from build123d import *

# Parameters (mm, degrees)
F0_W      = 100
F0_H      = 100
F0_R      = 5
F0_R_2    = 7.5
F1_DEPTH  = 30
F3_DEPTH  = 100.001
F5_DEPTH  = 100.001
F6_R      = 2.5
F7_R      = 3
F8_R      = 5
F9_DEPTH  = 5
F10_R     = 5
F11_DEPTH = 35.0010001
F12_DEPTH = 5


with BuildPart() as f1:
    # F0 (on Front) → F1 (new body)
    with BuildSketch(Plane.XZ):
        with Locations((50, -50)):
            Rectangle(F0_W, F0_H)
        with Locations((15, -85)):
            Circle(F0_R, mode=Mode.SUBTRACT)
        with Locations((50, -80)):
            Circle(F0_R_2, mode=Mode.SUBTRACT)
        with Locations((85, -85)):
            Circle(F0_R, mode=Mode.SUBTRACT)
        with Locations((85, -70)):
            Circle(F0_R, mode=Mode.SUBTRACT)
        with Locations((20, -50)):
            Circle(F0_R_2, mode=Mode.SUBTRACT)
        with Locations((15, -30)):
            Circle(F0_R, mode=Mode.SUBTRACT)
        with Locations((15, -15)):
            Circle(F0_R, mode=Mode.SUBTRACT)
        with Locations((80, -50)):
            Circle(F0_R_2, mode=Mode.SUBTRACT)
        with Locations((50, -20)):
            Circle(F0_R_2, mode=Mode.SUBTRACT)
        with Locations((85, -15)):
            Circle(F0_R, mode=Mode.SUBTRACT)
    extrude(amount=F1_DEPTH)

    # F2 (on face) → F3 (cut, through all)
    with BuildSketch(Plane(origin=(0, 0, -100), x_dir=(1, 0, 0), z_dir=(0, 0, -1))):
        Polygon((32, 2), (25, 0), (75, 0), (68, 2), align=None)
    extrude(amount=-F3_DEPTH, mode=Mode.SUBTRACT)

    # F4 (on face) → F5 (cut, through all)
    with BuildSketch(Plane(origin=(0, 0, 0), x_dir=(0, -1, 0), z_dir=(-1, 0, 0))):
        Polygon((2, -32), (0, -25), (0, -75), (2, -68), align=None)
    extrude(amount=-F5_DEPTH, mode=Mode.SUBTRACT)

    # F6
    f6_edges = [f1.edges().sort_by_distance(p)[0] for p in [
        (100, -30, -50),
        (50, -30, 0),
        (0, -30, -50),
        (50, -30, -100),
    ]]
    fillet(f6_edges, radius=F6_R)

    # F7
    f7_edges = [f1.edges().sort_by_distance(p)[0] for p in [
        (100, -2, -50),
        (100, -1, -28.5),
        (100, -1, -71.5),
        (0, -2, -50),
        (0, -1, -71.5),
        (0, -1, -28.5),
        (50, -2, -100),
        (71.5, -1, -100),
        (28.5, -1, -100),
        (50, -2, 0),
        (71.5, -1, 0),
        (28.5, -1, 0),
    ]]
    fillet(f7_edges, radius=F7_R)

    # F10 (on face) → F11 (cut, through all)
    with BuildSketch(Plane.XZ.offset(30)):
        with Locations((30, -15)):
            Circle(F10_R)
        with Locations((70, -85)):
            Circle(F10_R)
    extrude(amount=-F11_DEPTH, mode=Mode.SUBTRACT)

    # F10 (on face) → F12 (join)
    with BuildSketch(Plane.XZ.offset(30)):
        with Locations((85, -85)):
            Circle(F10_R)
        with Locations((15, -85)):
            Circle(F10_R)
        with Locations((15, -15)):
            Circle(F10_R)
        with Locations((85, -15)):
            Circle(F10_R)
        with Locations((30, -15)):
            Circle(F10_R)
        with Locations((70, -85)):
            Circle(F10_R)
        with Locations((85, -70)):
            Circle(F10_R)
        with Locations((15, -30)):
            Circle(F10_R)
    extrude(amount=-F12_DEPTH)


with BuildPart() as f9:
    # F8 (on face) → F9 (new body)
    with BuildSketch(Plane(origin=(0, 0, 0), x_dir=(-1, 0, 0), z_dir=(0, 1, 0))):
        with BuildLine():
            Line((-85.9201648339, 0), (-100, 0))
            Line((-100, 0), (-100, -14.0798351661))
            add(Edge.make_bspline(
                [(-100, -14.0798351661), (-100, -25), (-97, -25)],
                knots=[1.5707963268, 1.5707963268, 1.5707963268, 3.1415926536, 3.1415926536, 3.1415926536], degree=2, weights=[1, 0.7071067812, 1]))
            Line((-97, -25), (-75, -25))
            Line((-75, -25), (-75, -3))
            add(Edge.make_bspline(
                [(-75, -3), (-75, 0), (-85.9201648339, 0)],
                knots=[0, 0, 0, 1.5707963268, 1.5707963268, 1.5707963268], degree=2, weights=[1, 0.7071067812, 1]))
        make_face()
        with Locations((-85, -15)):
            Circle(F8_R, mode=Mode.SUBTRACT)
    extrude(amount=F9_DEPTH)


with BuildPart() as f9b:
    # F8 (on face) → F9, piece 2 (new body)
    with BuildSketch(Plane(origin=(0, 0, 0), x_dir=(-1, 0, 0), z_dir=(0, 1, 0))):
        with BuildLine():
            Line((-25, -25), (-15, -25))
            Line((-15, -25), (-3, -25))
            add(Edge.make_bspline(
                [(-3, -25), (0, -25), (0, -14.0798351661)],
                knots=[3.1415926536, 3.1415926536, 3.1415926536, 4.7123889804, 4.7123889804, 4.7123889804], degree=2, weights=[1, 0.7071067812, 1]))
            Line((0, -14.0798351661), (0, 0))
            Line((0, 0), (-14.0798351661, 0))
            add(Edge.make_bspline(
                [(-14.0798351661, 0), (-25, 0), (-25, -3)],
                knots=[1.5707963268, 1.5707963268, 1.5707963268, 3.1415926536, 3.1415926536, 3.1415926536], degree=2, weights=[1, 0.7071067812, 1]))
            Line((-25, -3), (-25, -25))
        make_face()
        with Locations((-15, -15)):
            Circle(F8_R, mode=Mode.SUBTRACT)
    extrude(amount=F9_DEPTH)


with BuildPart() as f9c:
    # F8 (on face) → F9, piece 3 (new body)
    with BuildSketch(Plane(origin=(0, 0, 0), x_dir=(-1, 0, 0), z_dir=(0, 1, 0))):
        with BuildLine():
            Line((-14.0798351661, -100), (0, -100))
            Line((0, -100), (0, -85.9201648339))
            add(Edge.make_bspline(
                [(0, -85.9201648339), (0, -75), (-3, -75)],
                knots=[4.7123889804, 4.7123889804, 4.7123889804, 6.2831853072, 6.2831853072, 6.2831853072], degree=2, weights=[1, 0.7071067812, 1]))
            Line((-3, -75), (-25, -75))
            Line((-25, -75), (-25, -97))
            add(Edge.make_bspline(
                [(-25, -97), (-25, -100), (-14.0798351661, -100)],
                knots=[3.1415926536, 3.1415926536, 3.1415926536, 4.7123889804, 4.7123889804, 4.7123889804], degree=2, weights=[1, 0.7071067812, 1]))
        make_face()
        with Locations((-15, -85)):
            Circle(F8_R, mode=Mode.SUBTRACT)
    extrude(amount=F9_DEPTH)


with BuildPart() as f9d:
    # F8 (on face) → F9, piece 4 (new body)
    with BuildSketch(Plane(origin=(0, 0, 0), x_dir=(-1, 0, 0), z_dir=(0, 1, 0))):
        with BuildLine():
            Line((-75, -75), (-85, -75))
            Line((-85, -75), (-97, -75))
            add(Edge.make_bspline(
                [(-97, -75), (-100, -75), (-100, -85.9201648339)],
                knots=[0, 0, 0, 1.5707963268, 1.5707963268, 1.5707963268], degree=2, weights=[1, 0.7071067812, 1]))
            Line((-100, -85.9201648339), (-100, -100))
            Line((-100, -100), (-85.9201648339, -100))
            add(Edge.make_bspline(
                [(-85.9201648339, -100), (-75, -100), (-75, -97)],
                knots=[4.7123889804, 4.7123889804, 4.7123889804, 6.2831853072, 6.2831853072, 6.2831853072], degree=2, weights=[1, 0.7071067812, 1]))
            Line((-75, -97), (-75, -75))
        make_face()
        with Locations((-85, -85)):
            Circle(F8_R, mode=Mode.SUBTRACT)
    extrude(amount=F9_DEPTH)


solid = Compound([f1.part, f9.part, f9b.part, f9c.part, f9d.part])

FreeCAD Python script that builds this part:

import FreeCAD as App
import Part
import Sketcher
from FreeCAD import Vector
Q = App.Units.Quantity


def edges_at(feature, points):
    """Names of the edges that pass closest to the given points."""
    edges = feature.Shape.Edges
    near = lambda p: min(range(len(edges)), key=lambda i: edges[i].distToShape(Part.Vertex(*p))[0])
    return sorted({f"Edge{near(p) + 1}" for p in points})

doc = App.newDocument("Part")
body = doc.addObject("PartDesign::Body", "Body")

# Sketch on XZ plane
sketch1 = doc.addObject("Sketcher::SketchObject", "Sketch")
body.addObject(sketch1)
sketch1.AttachmentSupport = (doc.XZ_Plane, [""])
sketch1.MapMode = "FlatFace"
sketch1.addGeometry([
    Part.LineSegment(Vector(0, 0, 0), Vector(0, -100, 0)),  # 0
    Part.LineSegment(Vector(0, -100, 0), Vector(100, -100, 0)),  # 1
    Part.LineSegment(Vector(100, -100, 0), Vector(100, 0, 0)),  # 2
    Part.LineSegment(Vector(100, 0, 0), Vector(0, 0, 0)),  # 3
    Part.Circle(Vector(15, -85, 0), Vector(0, 0, 1), 5),  # 4
    Part.Circle(Vector(50, -80, 0), Vector(0, 0, 1), 7.5),  # 5
    Part.Circle(Vector(85, -85, 0), Vector(0, 0, 1), 5),  # 6
    Part.Circle(Vector(85, -70, 0), Vector(0, 0, 1), 5),  # 7
    Part.Circle(Vector(20, -50, 0), Vector(0, 0, 1), 7.5),  # 8
    Part.Circle(Vector(15, -30, 0), Vector(0, 0, 1), 5),  # 9
    Part.Circle(Vector(15, -15, 0), Vector(0, 0, 1), 5),  # 10
    Part.Circle(Vector(80, -50, 0), Vector(0, 0, 1), 7.5),  # 11
    Part.Circle(Vector(50, -20, 0), Vector(0, 0, 1), 7.5),  # 12
    Part.Circle(Vector(85, -15, 0), Vector(0, 0, 1), 5),  # 13
], False)
sketch1.addConstraint([
    Sketcher.Constraint("Coincident", 0, 2, 1, 1),
    Sketcher.Constraint("Coincident", 1, 2, 2, 1),
    Sketcher.Constraint("Coincident", 2, 2, 3, 1),
    Sketcher.Constraint("Coincident", 3, 2, 0, 1),
    Sketcher.Constraint("Vertical", 0),
    Sketcher.Constraint("Horizontal", 1),
    Sketcher.Constraint("Vertical", 2),
    Sketcher.Constraint("Horizontal", 3),
    Sketcher.Constraint("Coincident", 3, 2, -1, 1),
    Sketcher.Constraint("Equal", 4, 6),
    Sketcher.Constraint("Equal", 6, 7),
    Sketcher.Constraint("Equal", 5, 8),
    Sketcher.Constraint("Equal", 7, 9),
    Sketcher.Constraint("Equal", 9, 10),
    Sketcher.Constraint("Equal", 8, 11),
    Sketcher.Constraint("Equal", 11, 12),
    Sketcher.Constraint("Equal", 10, 13),
    Sketcher.Constraint("Horizontal", 4, 3, 6, 3),
    Sketcher.Constraint("Horizontal", 8, 3, 11, 3),
    Sketcher.Constraint("Horizontal", 10, 3, 13, 3),
    Sketcher.Constraint("Vertical", 6, 3, 7, 3),
    Sketcher.Constraint("Vertical", 4, 3, 9, 3),
    Sketcher.Constraint("Vertical", 9, 3, 10, 3),
    Sketcher.Constraint("Vertical", 5, 3, 12, 3),
    Sketcher.Constraint("Vertical", 7, 3, 13, 3),
    Sketcher.Constraint("Equal", 3, 0),
    Sketcher.Constraint("Diameter", 4, Q("10 mm")),
    Sketcher.Constraint("Diameter", 5, Q("15 mm")),
    Sketcher.Constraint("DistanceX", 1, 1, 1, 2, Q("100 mm")),
    Sketcher.Constraint("DistanceX", -1, 1, 4, 3, Q("15 mm")),
    Sketcher.Constraint("DistanceY", 4, 3, -1, 1, Q("85 mm")),
    Sketcher.Constraint("DistanceX", -1, 1, 5, 3, Q("50 mm")),
    Sketcher.Constraint("DistanceY", 5, 3, -1, 1, Q("80 mm")),
    Sketcher.Constraint("DistanceX", -1, 1, 6, 3, Q("85 mm")),
    Sketcher.Constraint("DistanceY", 7, 3, -1, 1, Q("70 mm")),
    Sketcher.Constraint("DistanceX", -1, 1, 8, 3, Q("20 mm")),
    Sketcher.Constraint("DistanceY", 8, 3, -1, 1, Q("50 mm")),
    Sketcher.Constraint("DistanceY", 9, 3, -1, 1, Q("30 mm")),
    Sketcher.Constraint("DistanceY", 10, 3, -1, 1, Q("15 mm")),
    Sketcher.Constraint("DistanceX", -1, 1, 11, 3, Q("80 mm")),
    Sketcher.Constraint("DistanceY", 12, 3, -1, 1, Q("20 mm")),
])
pad1 = doc.addObject("PartDesign::Pad", "Pad")
body.addObject(pad1)
pad1.Profile = sketch1
pad1.Length = 30

# Sketch on XY plane
sketch2 = doc.addObject("Sketcher::SketchObject", "Sketch001")
body.addObject(sketch2)
sketch2.AttachmentSupport = (doc.XY_Plane, [""])
sketch2.MapMode = "FlatFace"
sketch2.AttachmentOffset = App.Placement(Vector(0, 0, -100), App.Rotation())
sketch2.addGeometry([
    Part.LineSegment(Vector(32, -2, 0), Vector(25, 0, 0)),
    Part.LineSegment(Vector(25, 0, 0), Vector(75, 0, 0)),
    Part.LineSegment(Vector(75, 0, 0), Vector(68, -2, 0)),
    Part.LineSegment(Vector(68, -2, 0), Vector(32, -2, 0)),
], False)
sketch2.addConstraint([
    Sketcher.Constraint("Coincident", 0, 2, 1, 1),
    Sketcher.Constraint("Coincident", 1, 2, 2, 1),
    Sketcher.Constraint("Coincident", 2, 2, 3, 1),
    Sketcher.Constraint("Coincident", 3, 2, 0, 1),
    Sketcher.Constraint("Horizontal", 1),
    Sketcher.Constraint("Horizontal", 3),
    Sketcher.Constraint("PointOnObject", 0, 2, -1),
    Sketcher.Constraint("Equal", 0, 2),
    Sketcher.Constraint("DistanceX", 1, 1, 1, 2, Q("50 mm")),
    Sketcher.Constraint("DistanceX", 3, 2, 3, 1, Q("36 mm")),
    Sketcher.Constraint("DistanceX", -1, 1, 0, 2, Q("25 mm")),
    Sketcher.Constraint("DistanceY", 2, 2, -1, 1, Q("2 mm")),
])
pocket1 = doc.addObject("PartDesign::Pocket", "Pocket")
body.addObject(pocket1)
pocket1.Profile = sketch2
pocket1.Type = "ThroughAll"
pocket1.Reversed = True

# Sketch on YZ plane
sketch3 = doc.addObject("Sketcher::SketchObject", "Sketch002")
body.addObject(sketch3)
sketch3.AttachmentSupport = (doc.YZ_Plane, [""])
sketch3.MapMode = "FlatFace"
sketch3.addGeometry([
    Part.LineSegment(Vector(-2, -32, 0), Vector(0, -25, 0)),
    Part.LineSegment(Vector(0, -25, 0), Vector(0, -75, 0)),
    Part.LineSegment(Vector(0, -75, 0), Vector(-2, -68, 0)),
    Part.LineSegment(Vector(-2, -68, 0), Vector(-2, -32, 0)),
], False)
sketch3.addConstraint([
    Sketcher.Constraint("Coincident", 0, 2, 1, 1),
    Sketcher.Constraint("Coincident", 1, 2, 2, 1),
    Sketcher.Constraint("Coincident", 2, 2, 3, 1),
    Sketcher.Constraint("Coincident", 3, 2, 0, 1),
    Sketcher.Constraint("Vertical", 1),
    Sketcher.Constraint("Vertical", 3),
    Sketcher.Constraint("PointOnObject", 0, 2, -2),
    Sketcher.Constraint("Equal", 0, 2),
    Sketcher.Constraint("DistanceY", 1, 2, 1, 1, Q("50 mm")),
    Sketcher.Constraint("DistanceY", 3, 1, 3, 2, Q("36 mm")),
    Sketcher.Constraint("DistanceY", 0, 2, -1, 1, Q("25 mm")),
    Sketcher.Constraint("DistanceX", 2, 2, -1, 1, Q("2 mm")),
])
pocket2 = doc.addObject("PartDesign::Pocket", "Pocket001")
body.addObject(pocket2)
pocket2.Profile = sketch3
pocket2.Type = "ThroughAll"
pocket2.Reversed = True
doc.recompute()

fillet = doc.addObject("PartDesign::Fillet", "Fillet")
body.addObject(fillet)
fillet.Base = (pocket2, edges_at(pocket2, [
    (100, -30, -50),
    (50, -30, 0),
    (0, -30, -50),
    (50, -30, -100),
]))
fillet.Radius = 2.5
doc.recompute()

fillet2 = doc.addObject("PartDesign::Fillet", "Fillet001")
body.addObject(fillet2)
fillet2.Base = (fillet, edges_at(fillet, [
    (100, -2, -50),
    (100, -1, -28.5),
    (100, -1, -71.5),
    (0, -2, -50),
    (0, -1, -71.5),
    (0, -1, -28.5),
    (50, -2, -100),
    (71.5, -1, -100),
    (28.5, -1, -100),
    (50, -2, 0),
    (71.5, -1, 0),
    (28.5, -1, 0),
]))
fillet2.Radius = 3

# Sketch on XZ plane
sketch4 = doc.addObject("Sketcher::SketchObject", "Sketch003")
body.addObject(sketch4)
sketch4.AttachmentSupport = (doc.XZ_Plane, [""])
sketch4.MapMode = "FlatFace"
sketch4.AttachmentOffset = App.Placement(Vector(0, 0, 30), App.Rotation())
sketch4.addGeometry([
    Part.Circle(Vector(30, -15, 0), Vector(0, 0, 1), 5),
    Part.Circle(Vector(70, -85, 0), Vector(0, 0, 1), 5),
], False)
sketch4.addConstraint([
    Sketcher.Constraint("Equal", 0, 1),
    Sketcher.Constraint("Diameter", 0, Q("10 mm")),
    Sketcher.Constraint("DistanceX", -1, 1, 0, 3, Q("30 mm")),
    Sketcher.Constraint("DistanceY", 0, 3, -1, 1, Q("15 mm")),
    Sketcher.Constraint("DistanceX", -1, 1, 1, 3, Q("70 mm")),
    Sketcher.Constraint("DistanceY", 1, 3, -1, 1, Q("85 mm")),
])
pocket3 = doc.addObject("PartDesign::Pocket", "Pocket002")
body.addObject(pocket3)
pocket3.Profile = sketch4
pocket3.Type = "ThroughAll"

# Sketch on XZ plane
sketch5 = doc.addObject("Sketcher::SketchObject", "Sketch004")
body.addObject(sketch5)
sketch5.AttachmentSupport = (doc.XZ_Plane, [""])
sketch5.MapMode = "FlatFace"
sketch5.AttachmentOffset = App.Placement(Vector(0, 0, 30), App.Rotation())
sketch5.addGeometry([
    Part.Circle(Vector(85, -85, 0), Vector(0, 0, 1), 5),  # 0
    Part.Circle(Vector(15, -85, 0), Vector(0, 0, 1), 5),  # 1
    Part.Circle(Vector(15, -15, 0), Vector(0, 0, 1), 5),  # 2
    Part.Circle(Vector(85, -15, 0), Vector(0, 0, 1), 5),  # 3
    Part.Circle(Vector(30, -15, 0), Vector(0, 0, 1), 5),  # 4
    Part.Circle(Vector(70, -85, 0), Vector(0, 0, 1), 5),  # 5
    Part.Circle(Vector(85, -70, 0), Vector(0, 0, 1), 5),  # 6
    Part.Circle(Vector(15, -30, 0), Vector(0, 0, 1), 5),  # 7
], False)
sketch5.addConstraint([
    Sketcher.Constraint("Equal", 0, 1),
    Sketcher.Constraint("Equal", 1, 2),
    Sketcher.Constraint("Equal", 2, 3),
    Sketcher.Constraint("Equal", 3, 4),
    Sketcher.Constraint("Equal", 4, 5),
    Sketcher.Constraint("Equal", 5, 6),
    Sketcher.Constraint("Equal", 6, 7),
    Sketcher.Constraint("Horizontal", 0, 3, 1, 3),
    Sketcher.Constraint("Horizontal", 2, 3, 3, 3),
    Sketcher.Constraint("Horizontal", 3, 3, 4, 3),
    Sketcher.Constraint("Horizontal", 1, 3, 5, 3),
    Sketcher.Constraint("Vertical", 1, 3, 2, 3),
    Sketcher.Constraint("Vertical", 0, 3, 3, 3),
    Sketcher.Constraint("Vertical", 3, 3, 6, 3),
    Sketcher.Constraint("Vertical", 2, 3, 7, 3),
    Sketcher.Constraint("Diameter", 0, Q("10 mm")),
    Sketcher.Constraint("DistanceX", -1, 1, 0, 3, Q("85 mm")),
    Sketcher.Constraint("DistanceY", 0, 3, -1, 1, Q("85 mm")),
    Sketcher.Constraint("DistanceX", -1, 1, 1, 3, Q("15 mm")),
    Sketcher.Constraint("DistanceY", 2, 3, -1, 1, Q("15 mm")),
    Sketcher.Constraint("DistanceX", -1, 1, 4, 3, Q("30 mm")),
    Sketcher.Constraint("DistanceX", -1, 1, 5, 3, Q("70 mm")),
    Sketcher.Constraint("DistanceY", 6, 3, -1, 1, Q("70 mm")),
    Sketcher.Constraint("DistanceY", 7, 3, -1, 1, Q("30 mm")),
])
pad2 = doc.addObject("PartDesign::Pad", "Pad001")
body.addObject(pad2)
pad2.Profile = sketch5
pad2.Length = 5
pad2.Reversed = True
body2 = doc.addObject("PartDesign::Body", "Body001")

# Sketch on XZ plane
sketch6 = doc.addObject("Sketcher::SketchObject", "Sketch005")
body2.addObject(sketch6)
sketch6.AttachmentSupport = (doc.getObject("XZ_Plane001"), [""])
sketch6.MapMode = "FlatFace"
sketch6.addGeometry([
    Part.LineSegment(Vector(85.920165, 0, 0), Vector(100, 0, 0)),  # 0
    Part.LineSegment(Vector(100, 0, 0), Vector(100, -14.079835, 0)),  # 1
    Part.BSplineCurve([Vector(100, -14.079835, 0), Vector(100, -25, 0), Vector(97, -25, 0)], [3, 3], [1.570796327, 3.141592654], False, 2, [1, 0.707106781, 1], False),  # 2
    Part.LineSegment(Vector(97, -25, 0), Vector(75, -25, 0)),  # 3
    Part.LineSegment(Vector(75, -25, 0), Vector(75, -3, 0)),  # 4
    Part.BSplineCurve([Vector(75, -3, 0), Vector(75, 0, 0), Vector(85.920165, 0, 0)], [3, 3], [0, 1.570796327], False, 2, [1, 0.707106781, 1], False),  # 5
    Part.Circle(Vector(85, -15, 0), Vector(0, 0, 1), 5),  # 6
], False)
sketch6.addConstraint([
    Sketcher.Constraint("Block", 2),
    Sketcher.Constraint("Block", 5),
    Sketcher.Constraint("Coincident", 0, 2, 1, 1),
    Sketcher.Constraint("Coincident", 1, 2, 2, 1),
    Sketcher.Constraint("Coincident", 2, 2, 3, 1),
    Sketcher.Constraint("Coincident", 3, 2, 4, 1),
    Sketcher.Constraint("Coincident", 4, 2, 5, 1),
    Sketcher.Constraint("Coincident", 5, 2, 0, 1),
    Sketcher.Constraint("Horizontal", 0),
    Sketcher.Constraint("Vertical", 1),
    Sketcher.Constraint("Horizontal", 3),
    Sketcher.Constraint("Vertical", 4),
    Sketcher.Constraint("Diameter", 6, Q("10 mm")),
    Sketcher.Constraint("DistanceX", -1, 1, 6, 3, Q("85 mm")),
    Sketcher.Constraint("DistanceY", 6, 3, -1, 1, Q("15 mm")),
])
pad3 = doc.addObject("PartDesign::Pad", "Pad002")
body2.addObject(pad3)
pad3.Profile = sketch6
pad3.Length = 5
pad3.Reversed = True
body3 = doc.addObject("PartDesign::Body", "Body002")

# Sketch on XZ plane
sketch7 = doc.addObject("Sketcher::SketchObject", "Sketch006")
body3.addObject(sketch7)
sketch7.AttachmentSupport = (doc.getObject("XZ_Plane002"), [""])
sketch7.MapMode = "FlatFace"
sketch7.addGeometry([
    Part.LineSegment(Vector(25, -25, 0), Vector(3, -25, 0)),  # 0
    Part.BSplineCurve([Vector(3, -25, 0), Vector(0, -25, 0), Vector(0, -14.079835, 0)], [3, 3], [3.141592654, 4.71238898], False, 2, [1, 0.707106781, 1], False),  # 1
    Part.LineSegment(Vector(0, -14.079835, 0), Vector(0, 0, 0)),  # 2
    Part.LineSegment(Vector(0, 0, 0), Vector(14.079835, 0, 0)),  # 3
    Part.BSplineCurve([Vector(14.079835, 0, 0), Vector(25, 0, 0), Vector(25, -3, 0)], [3, 3], [1.570796327, 3.141592654], False, 2, [1, 0.707106781, 1], False),  # 4
    Part.LineSegment(Vector(25, -3, 0), Vector(25, -25, 0)),  # 5
    Part.Circle(Vector(15, -15, 0), Vector(0, 0, 1), 5),  # 6
], False)
sketch7.addConstraint([
    Sketcher.Constraint("Block", 1),
    Sketcher.Constraint("Block", 4),
    Sketcher.Constraint("Coincident", 0, 2, 1, 1),
    Sketcher.Constraint("Coincident", 1, 2, 2, 1),
    Sketcher.Constraint("Coincident", 2, 2, 3, 1),
    Sketcher.Constraint("Coincident", 3, 2, 4, 1),
    Sketcher.Constraint("Coincident", 4, 2, 5, 1),
    Sketcher.Constraint("Coincident", 5, 2, 0, 1),
    Sketcher.Constraint("Horizontal", 0),
    Sketcher.Constraint("Vertical", 2),
    Sketcher.Constraint("Horizontal", 3),
    Sketcher.Constraint("Vertical", 5),
    Sketcher.Constraint("Diameter", 6, Q("10 mm")),
    Sketcher.Constraint("DistanceX", -1, 1, 6, 3, Q("15 mm")),
    Sketcher.Constraint("DistanceY", 6, 3, -1, 1, Q("15 mm")),
])
pad4 = doc.addObject("PartDesign::Pad", "Pad003")
body3.addObject(pad4)
pad4.Profile = sketch7
pad4.Length = 5
pad4.Reversed = True
body4 = doc.addObject("PartDesign::Body", "Body003")

# Sketch on XZ plane
sketch8 = doc.addObject("Sketcher::SketchObject", "Sketch007")
body4.addObject(sketch8)
sketch8.AttachmentSupport = (doc.getObject("XZ_Plane003"), [""])
sketch8.MapMode = "FlatFace"
sketch8.addGeometry([
    Part.LineSegment(Vector(14.079835, -100, 0), Vector(0, -100, 0)),  # 0
    Part.LineSegment(Vector(0, -100, 0), Vector(0, -85.920165, 0)),  # 1
    Part.BSplineCurve([Vector(0, -85.920165, 0), Vector(0, -75, 0), Vector(3, -75, 0)], [3, 3], [4.71238898, 6.283185307], False, 2, [1, 0.707106781, 1], False),  # 2
    Part.LineSegment(Vector(3, -75, 0), Vector(25, -75, 0)),  # 3
    Part.LineSegment(Vector(25, -75, 0), Vector(25, -97, 0)),  # 4
    Part.BSplineCurve([Vector(25, -97, 0), Vector(25, -100, 0), Vector(14.079835, -100, 0)], [3, 3], [3.141592654, 4.71238898], False, 2, [1, 0.707106781, 1], False),  # 5
    Part.Circle(Vector(15, -85, 0), Vector(0, 0, 1), 5),  # 6
], False)
sketch8.addConstraint([
    Sketcher.Constraint("Block", 2),
    Sketcher.Constraint("Block", 5),
    Sketcher.Constraint("Coincident", 0, 2, 1, 1),
    Sketcher.Constraint("Coincident", 1, 2, 2, 1),
    Sketcher.Constraint("Coincident", 2, 2, 3, 1),
    Sketcher.Constraint("Coincident", 3, 2, 4, 1),
    Sketcher.Constraint("Coincident", 4, 2, 5, 1),
    Sketcher.Constraint("Coincident", 5, 2, 0, 1),
    Sketcher.Constraint("Horizontal", 0),
    Sketcher.Constraint("Vertical", 1),
    Sketcher.Constraint("Horizontal", 3),
    Sketcher.Constraint("Vertical", 4),
    Sketcher.Constraint("Diameter", 6, Q("10 mm")),
    Sketcher.Constraint("DistanceX", -1, 1, 6, 3, Q("15 mm")),
    Sketcher.Constraint("DistanceY", 6, 3, -1, 1, Q("85 mm")),
])
pad5 = doc.addObject("PartDesign::Pad", "Pad004")
body4.addObject(pad5)
pad5.Profile = sketch8
pad5.Length = 5
pad5.Reversed = True
body5 = doc.addObject("PartDesign::Body", "Body004")

# Sketch on XZ plane
sketch9 = doc.addObject("Sketcher::SketchObject", "Sketch008")
body5.addObject(sketch9)
sketch9.AttachmentSupport = (doc.getObject("XZ_Plane004"), [""])
sketch9.MapMode = "FlatFace"
sketch9.addGeometry([
    Part.LineSegment(Vector(75, -75, 0), Vector(97, -75, 0)),  # 0
    Part.BSplineCurve([Vector(97, -75, 0), Vector(100, -75, 0), Vector(100, -85.920165, 0)], [3, 3], [0, 1.570796327], False, 2, [1, 0.707106781, 1], False),  # 1
    Part.LineSegment(Vector(100, -85.920165, 0), Vector(100, -100, 0)),  # 2
    Part.LineSegment(Vector(100, -100, 0), Vector(85.920165, -100, 0)),  # 3
    Part.BSplineCurve([Vector(85.920165, -100, 0), Vector(75, -100, 0), Vector(75, -97, 0)], [3, 3], [4.71238898, 6.283185307], False, 2, [1, 0.707106781, 1], False),  # 4
    Part.LineSegment(Vector(75, -97, 0), Vector(75, -75, 0)),  # 5
    Part.Circle(Vector(85, -85, 0), Vector(0, 0, 1), 5),  # 6
], False)
sketch9.addConstraint([
    Sketcher.Constraint("Block", 1),
    Sketcher.Constraint("Block", 4),
    Sketcher.Constraint("Coincident", 0, 2, 1, 1),
    Sketcher.Constraint("Coincident", 1, 2, 2, 1),
    Sketcher.Constraint("Coincident", 2, 2, 3, 1),
    Sketcher.Constraint("Coincident", 3, 2, 4, 1),
    Sketcher.Constraint("Coincident", 4, 2, 5, 1),
    Sketcher.Constraint("Coincident", 5, 2, 0, 1),
    Sketcher.Constraint("Horizontal", 0),
    Sketcher.Constraint("Vertical", 2),
    Sketcher.Constraint("Horizontal", 3),
    Sketcher.Constraint("Vertical", 5),
    Sketcher.Constraint("Diameter", 6, Q("10 mm")),
    Sketcher.Constraint("DistanceX", -1, 1, 6, 3, Q("85 mm")),
    Sketcher.Constraint("DistanceY", 6, 3, -1, 1, Q("85 mm")),
])
pad6 = doc.addObject("PartDesign::Pad", "Pad005")
body5.addObject(pad6)
pad6.Profile = sketch9
pad6.Length = 5
pad6.Reversed = True

doc.recompute()
